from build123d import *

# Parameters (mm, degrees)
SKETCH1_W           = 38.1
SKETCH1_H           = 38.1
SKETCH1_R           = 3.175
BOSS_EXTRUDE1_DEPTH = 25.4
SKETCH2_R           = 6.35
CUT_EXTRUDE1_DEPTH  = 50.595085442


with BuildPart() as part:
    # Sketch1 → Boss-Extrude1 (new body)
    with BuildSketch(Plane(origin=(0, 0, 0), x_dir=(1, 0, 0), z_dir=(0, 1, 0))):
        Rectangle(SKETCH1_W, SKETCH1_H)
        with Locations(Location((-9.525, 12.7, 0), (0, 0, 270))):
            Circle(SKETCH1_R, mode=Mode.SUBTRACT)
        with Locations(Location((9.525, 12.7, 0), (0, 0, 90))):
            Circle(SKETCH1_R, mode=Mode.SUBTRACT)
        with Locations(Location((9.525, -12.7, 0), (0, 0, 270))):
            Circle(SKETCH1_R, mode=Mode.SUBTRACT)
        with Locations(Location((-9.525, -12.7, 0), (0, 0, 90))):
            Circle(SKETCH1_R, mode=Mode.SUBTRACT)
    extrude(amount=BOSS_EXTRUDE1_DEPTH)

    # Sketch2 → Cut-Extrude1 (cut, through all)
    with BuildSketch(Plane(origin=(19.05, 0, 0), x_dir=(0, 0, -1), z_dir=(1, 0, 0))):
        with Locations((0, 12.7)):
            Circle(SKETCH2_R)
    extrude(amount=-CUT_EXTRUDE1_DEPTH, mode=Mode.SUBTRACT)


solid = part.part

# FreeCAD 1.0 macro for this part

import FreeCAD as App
import Part
import Sketcher
from FreeCAD import Vector
Q = App.Units.Quantity

doc = App.newDocument("Part")
body = doc.addObject("PartDesign::Body", "Body")

# Sketch on XZ plane
sketch1 = body.newObject("Sketcher::SketchObject", "Sketch")
sketch1.AttachmentSupport = (doc.getObject("XZ_Plane"), [""])
sketch1.MapMode = "FlatFace"
sketch1.addGeometry([
    Part.LineSegment(Vector(-19.05, -19.05, 0), Vector(-19.05, 19.05, 0)),  # 0
    Part.LineSegment(Vector(-19.05, 19.05, 0), Vector(19.05, 19.05, 0)),  # 1
    Part.LineSegment(Vector(19.05, 19.05, 0), Vector(19.05, -19.05, 0)),  # 2
    Part.LineSegment(Vector(19.05, -19.05, 0), Vector(-19.05, -19.05, 0)),  # 3
    Part.Circle(Vector(-9.525, 12.7, 0), Vector(0, 0, 1), 3.175),  # 4
    Part.Circle(Vector(9.525, 12.7, 0), Vector(0, 0, 1), 3.175),  # 5
    Part.Circle(Vector(-9.525, -12.7, 0), Vector(0, 0, 1), 3.175),  # 6
    Part.Circle(Vector(9.525, -12.7, 0), Vector(0, 0, 1), 3.175),  # 7
], False)
sketch1.addConstraint([
    Sketcher.Constraint("Coincident", 0, 2, 1, 1),
    Sketcher.Constraint("Coincident", 1, 2, 2, 1),
    Sketcher.Constraint("Coincident", 2, 2, 3, 1),
    Sketcher.Constraint("Coincident", 3, 2, 0, 1),
    Sketcher.Constraint("Vertical", 0),
    Sketcher.Constraint("Horizontal", 1),
    Sketcher.Constraint("Vertical", 2),
    Sketcher.Constraint("Horizontal", 3),
    Sketcher.Constraint("Equal", 4, 5),
    Sketcher.Constraint("Equal", 5, 6),
    Sketcher.Constraint("Equal", 6, 7),
    Sketcher.Constraint("Symmetric", 5, 3, 6, 3, -1, 1),
    Sketcher.Constraint("Symmetric", 4, 3, 7, 3, -1, 1),
    Sketcher.Constraint("Symmetric", 0, 2, 2, 2, -1, 1),
    Sketcher.Constraint("Symmetric", 4, 3, 5, 3, -2),
    Sketcher.Constraint("Equal", 3, 0),
    Sketcher.Constraint("Diameter", 4, Q("0.25 in")),
    Sketcher.Constraint("DistanceX", 1, 1, 1, 2, Q("1.5 in")),
    Sketcher.Constraint("DistanceY", 6, 3, 4, 3, Q("1 in")),
    Sketcher.Constraint("DistanceX", 4, 3, 5, 3, Q("0.75 in")),
])
pad1 = body.newObject("PartDesign::Pad", "Pad")
pad1.Profile = sketch1
pad1.Length = Q("1 in")
pad1.Reversed = True

# Sketch on YZ plane
sketch2 = body.newObject("Sketcher::SketchObject", "Sketch001")
sketch2.AttachmentSupport = (doc.getObject("YZ_Plane"), [""])
sketch2.MapMode = "FlatFace"
sketch2.AttachmentOffset = App.Placement(Vector(0, 0, 0.75 * 25.4), App.Rotation())
sketch2.addGeometry(Part.Circle(Vector(12.7, 0, 0), Vector(0, 0, 1), 6.35), False)
sketch2.addConstraint([
    Sketcher.Constraint("PointOnObject", 0, 3, -1),
    Sketcher.Constraint("Diameter", 0, Q("0.5 in")),
    Sketcher.Constraint("DistanceX", -1, 1, 0, 3, Q("0.5 in")),
])
pocket1 = body.newObject("PartDesign::Pocket", "Pocket")
pocket1.Profile = sketch2
pocket1.Type = "ThroughAll"

doc.recompute()
